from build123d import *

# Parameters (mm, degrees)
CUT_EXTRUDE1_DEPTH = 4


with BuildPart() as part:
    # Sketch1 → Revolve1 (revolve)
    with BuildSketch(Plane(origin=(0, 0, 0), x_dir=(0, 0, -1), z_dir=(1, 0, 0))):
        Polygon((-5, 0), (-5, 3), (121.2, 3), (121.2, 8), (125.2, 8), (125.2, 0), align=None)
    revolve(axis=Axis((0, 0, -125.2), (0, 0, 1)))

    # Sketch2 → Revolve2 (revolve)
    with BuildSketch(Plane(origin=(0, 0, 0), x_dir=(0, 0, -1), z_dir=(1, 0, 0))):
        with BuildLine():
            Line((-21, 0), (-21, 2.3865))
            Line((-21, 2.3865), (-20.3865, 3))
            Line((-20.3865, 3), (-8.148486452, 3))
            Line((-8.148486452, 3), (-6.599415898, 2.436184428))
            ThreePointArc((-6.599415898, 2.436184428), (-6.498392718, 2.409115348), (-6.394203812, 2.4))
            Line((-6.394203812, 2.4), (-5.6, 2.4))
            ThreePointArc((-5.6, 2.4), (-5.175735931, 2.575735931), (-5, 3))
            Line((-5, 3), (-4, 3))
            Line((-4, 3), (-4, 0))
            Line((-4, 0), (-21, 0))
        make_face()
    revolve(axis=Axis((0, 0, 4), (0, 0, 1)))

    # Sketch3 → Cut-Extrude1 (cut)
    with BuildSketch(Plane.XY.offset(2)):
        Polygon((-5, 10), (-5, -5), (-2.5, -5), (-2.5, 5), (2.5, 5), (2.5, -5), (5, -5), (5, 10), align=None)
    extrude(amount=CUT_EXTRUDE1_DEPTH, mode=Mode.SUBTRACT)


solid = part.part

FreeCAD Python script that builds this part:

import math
import FreeCAD as App
import Part
import Sketcher
Q = App.Units.Quantity


def add_polygon(sketch, points):
    """Adds a closed chain of lines whose ends are joined by coincident constraints."""
    first, n = sketch.GeometryCount, len(points)
    for a, b in zip(points, points[1:] + points[:1]):
        sketch.addGeometry(Part.LineSegment(App.Vector(*a, 0), App.Vector(*b, 0)), False)
    for i in range(n):
        sketch.addConstraint(Sketcher.Constraint("Coincident", first + i, 2, first + (i + 1) % n, 1))

doc = App.newDocument("Part")
body = doc.addObject("PartDesign::Body", "Body")

# Sketch on YZ plane
sketch1 = doc.addObject("Sketcher::SketchObject", "Sketch")
body.addObject(sketch1)
sketch1.AttachmentSupport = (doc.YZ_Plane, [""])
sketch1.MapMode = "FlatFace"
add_polygon(sketch1, [(3, 5), (0, 5), (0, -125.2), (8, -125.2), (8, -121.2), (3, -121.2)])  # lines 0-5
sketch1.addConstraint([
    Sketcher.Constraint("Horizontal", 0),
    Sketcher.Constraint("Vertical", 1),
    Sketcher.Constraint("Horizontal", 2),
    Sketcher.Constraint("Vertical", 3),
    Sketcher.Constraint("Horizontal", 4),
    Sketcher.Constraint("Vertical", 5),
    Sketcher.Constraint("PointOnObject", 0, 2, -2),
    Sketcher.Constraint("DistanceX", 0, 2, 0, 1, Q("3 mm")),
    Sketcher.Constraint("DistanceX", 2, 1, 2, 2, Q("8 mm")),
    Sketcher.Constraint("DistanceY", 3, 1, 3, 2, Q("4 mm")),
    Sketcher.Constraint("DistanceY", 1, 2, 1, 1, Q("130.2 mm")),
    Sketcher.Constraint("DistanceY", -1, 1, 0, 2, Q("5 mm")),
])
revolution = doc.addObject("PartDesign::Revolution", "Revolution")
body.addObject(revolution)
revolution.Profile = sketch1
revolution.ReferenceAxis = (sketch1, ["V_Axis"])
revolution.Angle = 360

# Sketch on YZ plane
sketch2 = doc.addObject("Sketcher::SketchObject", "Sketch001")
body.addObject(sketch2)
sketch2.AttachmentSupport = (doc.YZ_Plane, [""])
sketch2.MapMode = "FlatFace"
sketch2.addGeometry([
    Part.LineSegment(App.Vector(2.39, 21, 0), App.Vector(0, 21, 0)),  # 0
    Part.LineSegment(App.Vector(0, 21, 0), App.Vector(0, 4, 0)),  # 1
    Part.LineSegment(App.Vector(0, 4, 0), App.Vector(3, 4, 0)),  # 2
    Part.LineSegment(App.Vector(3, 4, 0), App.Vector(3, 5, 0)),  # 3
    Part.ArcOfCircle(Part.Circle(App.Vector(3, 5.6, 0), App.Vector(0, 0, 1), 0.6), math.radians(180), math.radians(270)),  # 4
    Part.LineSegment(App.Vector(2.4, 5.6, 0), App.Vector(2.4, 6.39, 0)),  # 5
    Part.ArcOfCircle(Part.Circle(App.Vector(3, 6.39, 0), App.Vector(0, 0, 1), 0.6), math.radians(160), math.radians(180)),  # 6
    Part.LineSegment(App.Vector(2.44, 6.6, 0), App.Vector(3, 8.15, 0)),  # 7
    Part.LineSegment(App.Vector(3, 8.15, 0), App.Vector(3, 20.39, 0)),  # 8
    Part.LineSegment(App.Vector(3, 20.39, 0), App.Vector(2.39, 21, 0)),  # 9
], False)
sketch2.addConstraint([
    Sketcher.Constraint("Coincident", 0, 2, 1, 1),
    Sketcher.Constraint("Coincident", 1, 2, 2, 1),
    Sketcher.Constraint("Coincident", 2, 2, 3, 1),
    Sketcher.Constraint("Coincident", 3, 2, 4, 2),
    Sketcher.Constraint("Tangent", 4, 1, 5, 1),
    Sketcher.Constraint("Tangent", 5, 2, 6, 2),
    Sketcher.Constraint("Tangent", 6, 1, 7, 1),
    Sketcher.Constraint("Coincident", 7, 2, 8, 1),
    Sketcher.Constraint("Coincident", 8, 2, 9, 1),
    Sketcher.Constraint("Coincident", 9, 2, 0, 1),
    Sketcher.Constraint("Horizontal", 0),
    Sketcher.Constraint("Vertical", 1),
    Sketcher.Constraint("Horizontal", 2),
    Sketcher.Constraint("Vertical", 3),
    Sketcher.Constraint("Vertical", 5),
    Sketcher.Constraint("Vertical", 8),
    Sketcher.Constraint("Equal", 4, 6),
    Sketcher.Constraint("PointOnObject", 0, 2, -2),
    Sketcher.Constraint("Vertical", 6, 3, 2, 2),
    Sketcher.Constraint("Vertical", 3, 2, 7, 2),
    Sketcher.Constraint("Radius", 4, Q("0.6 mm")),
    Sketcher.Constraint("DistanceX", 2, 1, 2, 2, Q("3 mm")),
    Sketcher.Constraint("DistanceY", 1, 2, 1, 1, Q("17 mm")),
    Sketcher.Constraint("DistanceY", 3, 1, 3, 2, Q("1 mm")),
    Sketcher.Constraint("Angle", 7, Q("70 deg")),
    Sketcher.Constraint("Angle", 9, Q("135 deg")),
    Sketcher.Constraint("DistanceY", -1, 1, 0, 2, Q("21 mm")),
    Sketcher.Constraint("DistanceX", 0, 2, 0, 1, Q("2.3865 mm")),
    Sketcher.Constraint("DistanceY", 5, 1, 5, 2, Q("0.794204 mm")),
])
revolution2 = doc.addObject("PartDesign::Revolution", "Revolution001")
body.addObject(revolution2)
revolution2.Profile = sketch2
revolution2.ReferenceAxis = (sketch2, ["V_Axis"])
revolution2.Angle = 360

# Sketch on XY plane
sketch3 = doc.addObject("Sketcher::SketchObject", "Sketch002")
body.addObject(sketch3)
sketch3.AttachmentSupport = (doc.XY_Plane, [""])
sketch3.MapMode = "FlatFace"
sketch3.AttachmentOffset = App.Placement(App.Vector(0, 0, 2), App.Rotation())
add_polygon(sketch3, [(-5, 10), (-5, -5), (-2.5, -5), (-2.5, 5), (2.5, 5), (2.5, -5), (5, -5), (5, 10)])  # lines 0-7
sketch3.addConstraint([
    Sketcher.Constraint("Vertical", 0),
    Sketcher.Constraint("Horizontal", 1),
    Sketcher.Constraint("Vertical", 2),
    Sketcher.Constraint("Horizontal", 3),
    Sketcher.Constraint("Vertical", 4),
    Sketcher.Constraint("Horizontal", 5),
    Sketcher.Constraint("Vertical", 6),
    Sketcher.Constraint("Horizontal", 7),
    Sketcher.Constraint("Symmetric", 1, 2, 3, 2, -1, 1),
    Sketcher.Constraint("Symmetric", 0, 2, 5, 2, -2),
    Sketcher.Constraint("Equal", 7, 2),
    Sketcher.Constraint("DistanceX", 3, 1, 3, 2, Q("5 mm")),
    Sketcher.Constraint("DistanceX", 7, 2, 7, 1, Q("10 mm")),
    Sketcher.Constraint("DistanceY", 0, 2, 0, 1, Q("15 mm")),
])
pocket1 = doc.addObject("PartDesign::Pocket", "Pocket")
body.addObject(pocket1)
pocket1.Profile = sketch3
pocket1.Length = 4
pocket1.Reversed = True

doc.recompute()
